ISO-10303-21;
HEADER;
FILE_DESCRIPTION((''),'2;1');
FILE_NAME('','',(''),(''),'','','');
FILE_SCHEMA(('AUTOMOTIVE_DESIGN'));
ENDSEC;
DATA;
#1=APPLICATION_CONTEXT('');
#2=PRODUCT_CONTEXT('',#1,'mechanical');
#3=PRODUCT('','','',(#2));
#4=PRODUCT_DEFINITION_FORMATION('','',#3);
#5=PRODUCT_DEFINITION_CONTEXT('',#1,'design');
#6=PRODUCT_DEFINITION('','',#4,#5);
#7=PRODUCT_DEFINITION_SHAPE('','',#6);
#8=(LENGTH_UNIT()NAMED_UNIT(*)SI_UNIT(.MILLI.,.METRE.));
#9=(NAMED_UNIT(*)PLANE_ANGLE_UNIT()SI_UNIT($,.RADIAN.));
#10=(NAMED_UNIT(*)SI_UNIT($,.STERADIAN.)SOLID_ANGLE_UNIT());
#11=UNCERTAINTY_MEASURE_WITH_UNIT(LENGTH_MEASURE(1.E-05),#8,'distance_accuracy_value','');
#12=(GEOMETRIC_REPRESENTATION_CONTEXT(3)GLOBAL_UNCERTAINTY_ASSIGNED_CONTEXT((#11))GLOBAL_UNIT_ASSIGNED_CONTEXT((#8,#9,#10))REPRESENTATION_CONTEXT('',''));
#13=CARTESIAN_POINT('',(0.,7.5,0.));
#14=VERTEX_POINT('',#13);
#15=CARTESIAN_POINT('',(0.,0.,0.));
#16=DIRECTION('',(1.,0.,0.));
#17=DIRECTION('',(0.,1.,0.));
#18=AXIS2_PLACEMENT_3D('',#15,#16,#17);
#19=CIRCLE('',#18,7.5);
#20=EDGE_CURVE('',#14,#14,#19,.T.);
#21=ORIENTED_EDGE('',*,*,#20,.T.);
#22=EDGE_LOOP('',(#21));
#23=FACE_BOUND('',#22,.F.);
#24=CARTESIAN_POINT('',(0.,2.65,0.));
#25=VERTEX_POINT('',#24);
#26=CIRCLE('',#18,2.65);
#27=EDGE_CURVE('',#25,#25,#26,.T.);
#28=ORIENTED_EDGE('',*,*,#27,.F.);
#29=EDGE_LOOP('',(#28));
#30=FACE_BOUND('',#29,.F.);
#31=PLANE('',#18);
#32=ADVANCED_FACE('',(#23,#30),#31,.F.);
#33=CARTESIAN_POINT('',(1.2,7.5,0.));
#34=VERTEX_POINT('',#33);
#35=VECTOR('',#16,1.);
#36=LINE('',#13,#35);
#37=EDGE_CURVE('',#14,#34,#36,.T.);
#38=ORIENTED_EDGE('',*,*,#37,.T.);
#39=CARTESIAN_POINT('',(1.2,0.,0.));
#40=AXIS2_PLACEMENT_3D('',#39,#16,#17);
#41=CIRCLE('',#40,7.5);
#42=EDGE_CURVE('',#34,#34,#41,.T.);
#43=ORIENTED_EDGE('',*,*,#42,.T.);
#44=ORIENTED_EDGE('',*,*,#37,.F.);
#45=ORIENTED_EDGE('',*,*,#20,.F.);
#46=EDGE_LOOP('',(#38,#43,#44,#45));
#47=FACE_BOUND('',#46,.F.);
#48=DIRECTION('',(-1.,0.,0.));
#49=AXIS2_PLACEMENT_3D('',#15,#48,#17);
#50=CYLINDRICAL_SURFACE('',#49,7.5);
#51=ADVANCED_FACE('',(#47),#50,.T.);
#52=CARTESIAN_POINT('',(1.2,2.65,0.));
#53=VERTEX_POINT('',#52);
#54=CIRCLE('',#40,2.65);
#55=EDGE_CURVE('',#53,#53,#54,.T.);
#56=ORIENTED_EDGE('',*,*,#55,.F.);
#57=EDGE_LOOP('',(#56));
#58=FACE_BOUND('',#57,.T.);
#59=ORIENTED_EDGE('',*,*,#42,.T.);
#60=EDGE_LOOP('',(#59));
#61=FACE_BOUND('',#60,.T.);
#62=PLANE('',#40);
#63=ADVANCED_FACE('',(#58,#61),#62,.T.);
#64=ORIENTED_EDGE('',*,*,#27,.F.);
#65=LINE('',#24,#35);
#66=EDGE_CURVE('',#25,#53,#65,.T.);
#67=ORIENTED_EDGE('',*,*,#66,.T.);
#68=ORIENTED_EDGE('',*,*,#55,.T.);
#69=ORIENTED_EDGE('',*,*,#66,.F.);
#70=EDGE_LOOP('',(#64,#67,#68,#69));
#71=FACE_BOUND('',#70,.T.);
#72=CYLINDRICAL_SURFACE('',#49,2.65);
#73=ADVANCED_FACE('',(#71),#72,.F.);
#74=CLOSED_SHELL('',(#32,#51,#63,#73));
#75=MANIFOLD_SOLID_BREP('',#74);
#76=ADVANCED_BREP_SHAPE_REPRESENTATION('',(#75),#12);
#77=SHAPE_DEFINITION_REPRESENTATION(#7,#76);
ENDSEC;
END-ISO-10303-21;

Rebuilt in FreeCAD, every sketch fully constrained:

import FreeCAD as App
import Part
import Sketcher

V = App.Vector
Q = App.Units.Quantity

doc = App.newDocument("Part")
body = doc.addObject("PartDesign::Body", "Body")

# Sketch on YZ plane
sketch1 = doc.addObject("Sketcher::SketchObject", "Sketch")
body.addObject(sketch1)
sketch1.AttachmentSupport = (doc.YZ_Plane, [""])
sketch1.MapMode = "FlatFace"
sketch1.addGeometry([
    Part.Circle(V(0, 0, 0), V(0, 0, 1), 7.5),
    Part.Circle(V(0, 0, 0), V(0, 0, 1), 2.65),
], False)
sketch1.addConstraint([
    Sketcher.Constraint("Coincident", 0, 3, -1, 1),
    Sketcher.Constraint("Coincident", 1, 3, -1, 1),
    Sketcher.Constraint("Diameter", 0, Q("15 mm")),
    Sketcher.Constraint("Diameter", 1, Q("5.3 mm")),
])
pad1 = doc.addObject("PartDesign::Pad", "Pad")
body.addObject(pad1)
pad1.Profile = sketch1
pad1.Length = 1.2

doc.recompute()
